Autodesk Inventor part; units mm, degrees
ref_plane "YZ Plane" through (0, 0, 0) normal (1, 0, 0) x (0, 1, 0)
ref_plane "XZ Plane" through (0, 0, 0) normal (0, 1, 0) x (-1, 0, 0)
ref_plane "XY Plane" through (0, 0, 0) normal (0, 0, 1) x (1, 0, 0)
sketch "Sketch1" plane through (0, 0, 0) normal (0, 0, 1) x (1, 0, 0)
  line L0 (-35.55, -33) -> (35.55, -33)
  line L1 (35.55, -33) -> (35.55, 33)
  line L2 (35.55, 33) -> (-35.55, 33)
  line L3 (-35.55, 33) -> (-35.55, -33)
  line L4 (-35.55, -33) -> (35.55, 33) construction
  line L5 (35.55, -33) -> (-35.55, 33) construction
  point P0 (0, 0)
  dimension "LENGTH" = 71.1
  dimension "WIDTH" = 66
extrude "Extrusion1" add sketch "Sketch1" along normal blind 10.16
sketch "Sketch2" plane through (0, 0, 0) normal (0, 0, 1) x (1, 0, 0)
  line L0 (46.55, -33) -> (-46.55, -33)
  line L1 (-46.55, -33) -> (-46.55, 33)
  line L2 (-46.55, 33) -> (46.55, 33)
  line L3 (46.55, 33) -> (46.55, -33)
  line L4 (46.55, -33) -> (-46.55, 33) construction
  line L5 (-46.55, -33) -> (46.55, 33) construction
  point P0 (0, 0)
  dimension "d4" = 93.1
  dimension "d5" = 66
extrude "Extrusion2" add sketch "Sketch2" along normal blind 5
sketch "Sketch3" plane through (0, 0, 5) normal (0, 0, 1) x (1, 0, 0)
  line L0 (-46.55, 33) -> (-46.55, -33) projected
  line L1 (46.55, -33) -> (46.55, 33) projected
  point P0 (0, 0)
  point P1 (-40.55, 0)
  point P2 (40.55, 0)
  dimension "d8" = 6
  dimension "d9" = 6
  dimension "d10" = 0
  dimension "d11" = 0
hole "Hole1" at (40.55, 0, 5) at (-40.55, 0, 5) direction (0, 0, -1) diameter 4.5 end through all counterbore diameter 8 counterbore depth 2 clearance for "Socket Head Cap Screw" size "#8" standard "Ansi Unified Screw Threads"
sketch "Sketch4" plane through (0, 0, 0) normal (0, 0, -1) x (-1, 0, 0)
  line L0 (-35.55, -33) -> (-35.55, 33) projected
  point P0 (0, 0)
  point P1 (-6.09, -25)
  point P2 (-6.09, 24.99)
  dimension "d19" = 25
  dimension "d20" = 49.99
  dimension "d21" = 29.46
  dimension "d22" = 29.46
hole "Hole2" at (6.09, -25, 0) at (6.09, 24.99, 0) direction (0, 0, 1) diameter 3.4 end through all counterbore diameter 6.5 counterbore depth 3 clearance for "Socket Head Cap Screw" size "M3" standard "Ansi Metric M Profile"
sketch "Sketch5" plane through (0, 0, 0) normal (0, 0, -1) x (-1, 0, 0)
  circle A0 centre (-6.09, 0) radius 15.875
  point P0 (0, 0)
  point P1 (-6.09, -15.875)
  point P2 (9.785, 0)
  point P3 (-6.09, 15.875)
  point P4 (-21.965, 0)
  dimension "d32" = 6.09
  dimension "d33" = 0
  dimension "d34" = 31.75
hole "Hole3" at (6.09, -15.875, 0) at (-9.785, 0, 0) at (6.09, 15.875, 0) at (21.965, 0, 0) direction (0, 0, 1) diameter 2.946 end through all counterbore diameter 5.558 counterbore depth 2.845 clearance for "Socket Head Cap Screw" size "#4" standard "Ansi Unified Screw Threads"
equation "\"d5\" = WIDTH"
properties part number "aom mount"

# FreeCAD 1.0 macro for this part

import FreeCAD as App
import Part
import Sketcher
from FreeCAD import Vector

doc = App.newDocument("Part")
body = doc.addObject("PartDesign::Body", "Body")

sketch1 = body.newObject("Sketcher::SketchObject", "Sketch")
sketch1.AttachmentSupport = (doc.getObject("XY_Plane"), [""])
sketch1.MapMode = "FlatFace"
sketch1.addGeometry(Part.LineSegment(Vector(-36, 33, 0), Vector(-36, -33, 0)), False)
sketch1.addGeometry(Part.LineSegment(Vector(-36, -33, 0), Vector(36, -33, 0)), False)
sketch1.addGeometry(Part.LineSegment(Vector(36, -33, 0), Vector(36, 33, 0)), False)
sketch1.addGeometry(Part.LineSegment(Vector(36, 33, 0), Vector(-36, 33, 0)), False)
sketch1.addConstraint(Sketcher.Constraint("Coincident", 0, 2, 1, 1))
sketch1.addConstraint(Sketcher.Constraint("Coincident", 1, 2, 2, 1))
sketch1.addConstraint(Sketcher.Constraint("Coincident", 2, 2, 3, 1))
sketch1.addConstraint(Sketcher.Constraint("Coincident", 3, 2, 0, 1))
sketch1.addConstraint(Sketcher.Constraint("Vertical", 0))
sketch1.addConstraint(Sketcher.Constraint("Horizontal", 1))
sketch1.addConstraint(Sketcher.Constraint("Vertical", 2))
sketch1.addConstraint(Sketcher.Constraint("Horizontal", 3))
sketch1.addConstraint(Sketcher.Constraint("Symmetric", 0, 2, 2, 2, -1, 1))
sketch1.addConstraint(Sketcher.Constraint("DistanceY", 0, 2, 0, 1, 66.0))
sketch1.addConstraint(Sketcher.Constraint("DistanceX", 1, 1, 1, 2, 71.1))
pad1 = body.newObject("PartDesign::Pad", "Pad")
pad1.Profile = sketch1
pad1.Length = 10.16

sketch2 = body.newObject("Sketcher::SketchObject", "Sketch001")
sketch2.AttachmentSupport = (doc.getObject("XY_Plane"), [""])
sketch2.MapMode = "FlatFace"
sketch2.addGeometry(Part.LineSegment(Vector(-47, -33, 0), Vector(47, -33, 0)), False)
sketch2.addGeometry(Part.LineSegment(Vector(47, -33, 0), Vector(47, 33, 0)), False)
sketch2.addGeometry(Part.LineSegment(Vector(47, 33, 0), Vector(-47, 33, 0)), False)
sketch2.addGeometry(Part.LineSegment(Vector(-47, 33, 0), Vector(-47, -33, 0)), False)
sketch2.addConstraint(Sketcher.Constraint("Coincident", 0, 2, 1, 1))
sketch2.addConstraint(Sketcher.Constraint("Coincident", 1, 2, 2, 1))
sketch2.addConstraint(Sketcher.Constraint("Coincident", 2, 2, 3, 1))
sketch2.addConstraint(Sketcher.Constraint("Coincident", 3, 2, 0, 1))
sketch2.addConstraint(Sketcher.Constraint("Horizontal", 0))
sketch2.addConstraint(Sketcher.Constraint("Vertical", 1))
sketch2.addConstraint(Sketcher.Constraint("Horizontal", 2))
sketch2.addConstraint(Sketcher.Constraint("Vertical", 3))
sketch2.addConstraint(Sketcher.Constraint("Symmetric", 0, 2, 2, 2, -1, 1))
sketch2.addConstraint(Sketcher.Constraint("DistanceY", 1, 1, 1, 2, 66.0))
sketch2.addConstraint(Sketcher.Constraint("DistanceX", 0, 1, 0, 2, 93.1))
pad2 = body.newObject("PartDesign::Pad", "Pad001")
pad2.Profile = sketch2
pad2.Length = 5

sketch3 = body.newObject("Sketcher::SketchObject", "Sketch002")
sketch3.AttachmentSupport = (doc.getObject("XY_Plane"), [""])
sketch3.MapMode = "FlatFace"
sketch3.AttachmentOffset = App.Placement(Vector(0, 0, 5), App.Rotation())
sketch3.addGeometry(Part.Circle(Vector(40.5, 0, 0), Vector(0, 0, 1), 2.2), False)
sketch3.addGeometry(Part.Circle(Vector(-40.5, 0, 0), Vector(0, 0, 1), 2.2), False)
sketch3.addConstraint(Sketcher.Constraint("Equal", 0, 1))
sketch3.addConstraint(Sketcher.Constraint("Symmetric", 0, 3, 1, 3, -1, 1))
sketch3.addConstraint(Sketcher.Constraint("PointOnObject", 0, 3, -1))
sketch3.addConstraint(Sketcher.Constraint("Diameter", 0, 4.5))
sketch3.addConstraint(Sketcher.Constraint("DistanceX", 1, 3, 0, 3, 81.1))
doc.recompute()
hole = body.newObject("PartDesign::Hole", "Hole")
hole.Profile = sketch3
hole.ThreadType = "None"
hole.Diameter = 4.5
hole.DepthType = "ThroughAll"
hole.HoleCutType = "Counterbore"
hole.HoleCutDiameter = 8
hole.HoleCutDepth = 2

sketch4 = body.newObject("Sketcher::SketchObject", "Sketch003")
sketch4.AttachmentSupport = (doc.getObject("XY_Plane"), [""])
sketch4.MapMode = "FlatFace"
sketch4.addGeometry(Part.Circle(Vector(6.1, -25, 0), Vector(0, 0, 1), 1.7), False)
sketch4.addGeometry(Part.Circle(Vector(6.1, 25, 0), Vector(0, 0, 1), 1.7), False)
sketch4.addConstraint(Sketcher.Constraint("Equal", 0, 1))
sketch4.addConstraint(Sketcher.Constraint("Vertical", 0, 3, 1, 3))
sketch4.addConstraint(Sketcher.Constraint("Diameter", 0, 3.4))
sketch4.addConstraint(Sketcher.Constraint("DistanceY", 0, 3, -1, 1, 25.0))
sketch4.addConstraint(Sketcher.Constraint("DistanceX", -1, 1, 0, 3, 6.09))
sketch4.addConstraint(Sketcher.Constraint("DistanceY", -1, 1, 1, 3, 24.99))
doc.recompute()
hole2 = body.newObject("PartDesign::Hole", "Hole001")
hole2.Profile = sketch4
hole2.ThreadType = "None"
hole2.Diameter = 3.4
hole2.DepthType = "ThroughAll"
hole2.HoleCutType = "Counterbore"
hole2.HoleCutDiameter = 6.5
hole2.HoleCutDepth = 3
hole2.Reversed = True

sketch5 = body.newObject("Sketcher::SketchObject", "Sketch004")
sketch5.AttachmentSupport = (doc.getObject("XY_Plane"), [""])
sketch5.MapMode = "FlatFace"
sketch5.addGeometry(Part.Circle(Vector(6.1, -15.9, 0), Vector(0, 0, 1), 1.5), False)
sketch5.addGeometry(Part.Circle(Vector(-9.8, 0, 0), Vector(0, 0, 1), 1.5), False)
sketch5.addGeometry(Part.Circle(Vector(6.1, 15.9, 0), Vector(0, 0, 1), 1.5), False)
sketch5.addGeometry(Part.Circle(Vector(22, 0, 0), Vector(0, 0, 1), 1.5), False)
sketch5.addConstraint(Sketcher.Constraint("Equal", 0, 1))
sketch5.addConstraint(Sketcher.Constraint("Equal", 1, 2))
sketch5.addConstraint(Sketcher.Constraint("Equal", 2, 3))
sketch5.addConstraint(Sketcher.Constraint("Symmetric", 0, 3, 2, 3, -1))
sketch5.addConstraint(Sketcher.Constraint("PointOnObject", 1, 3, -1))
sketch5.addConstraint(Sketcher.Constraint("PointOnObject", 3, 3, -1))
sketch5.addConstraint(Sketcher.Constraint("Diameter", 0, 2.946))
sketch5.addConstraint(Sketcher.Constraint("DistanceX", -1, 1, 0, 3, 6.09))
sketch5.addConstraint(Sketcher.Constraint("DistanceY", 0, 3, 2, 3, 31.75))
sketch5.addConstraint(Sketcher.Constraint("DistanceX", 1, 3, 3, 3, 31.75))
sketch5.addConstraint(Sketcher.Constraint("DistanceX", 1, 3, -1, 1, 9.785))
doc.recompute()
hole3 = body.newObject("PartDesign::Hole", "Hole002")
hole3.Profile = sketch5
hole3.ThreadType = "None"
hole3.Diameter = 2.946
hole3.DepthType = "ThroughAll"
hole3.HoleCutType = "Counterbore"
hole3.HoleCutDiameter = 5.558
hole3.HoleCutDepth = 2.845
hole3.Reversed = True

doc.recompute()
